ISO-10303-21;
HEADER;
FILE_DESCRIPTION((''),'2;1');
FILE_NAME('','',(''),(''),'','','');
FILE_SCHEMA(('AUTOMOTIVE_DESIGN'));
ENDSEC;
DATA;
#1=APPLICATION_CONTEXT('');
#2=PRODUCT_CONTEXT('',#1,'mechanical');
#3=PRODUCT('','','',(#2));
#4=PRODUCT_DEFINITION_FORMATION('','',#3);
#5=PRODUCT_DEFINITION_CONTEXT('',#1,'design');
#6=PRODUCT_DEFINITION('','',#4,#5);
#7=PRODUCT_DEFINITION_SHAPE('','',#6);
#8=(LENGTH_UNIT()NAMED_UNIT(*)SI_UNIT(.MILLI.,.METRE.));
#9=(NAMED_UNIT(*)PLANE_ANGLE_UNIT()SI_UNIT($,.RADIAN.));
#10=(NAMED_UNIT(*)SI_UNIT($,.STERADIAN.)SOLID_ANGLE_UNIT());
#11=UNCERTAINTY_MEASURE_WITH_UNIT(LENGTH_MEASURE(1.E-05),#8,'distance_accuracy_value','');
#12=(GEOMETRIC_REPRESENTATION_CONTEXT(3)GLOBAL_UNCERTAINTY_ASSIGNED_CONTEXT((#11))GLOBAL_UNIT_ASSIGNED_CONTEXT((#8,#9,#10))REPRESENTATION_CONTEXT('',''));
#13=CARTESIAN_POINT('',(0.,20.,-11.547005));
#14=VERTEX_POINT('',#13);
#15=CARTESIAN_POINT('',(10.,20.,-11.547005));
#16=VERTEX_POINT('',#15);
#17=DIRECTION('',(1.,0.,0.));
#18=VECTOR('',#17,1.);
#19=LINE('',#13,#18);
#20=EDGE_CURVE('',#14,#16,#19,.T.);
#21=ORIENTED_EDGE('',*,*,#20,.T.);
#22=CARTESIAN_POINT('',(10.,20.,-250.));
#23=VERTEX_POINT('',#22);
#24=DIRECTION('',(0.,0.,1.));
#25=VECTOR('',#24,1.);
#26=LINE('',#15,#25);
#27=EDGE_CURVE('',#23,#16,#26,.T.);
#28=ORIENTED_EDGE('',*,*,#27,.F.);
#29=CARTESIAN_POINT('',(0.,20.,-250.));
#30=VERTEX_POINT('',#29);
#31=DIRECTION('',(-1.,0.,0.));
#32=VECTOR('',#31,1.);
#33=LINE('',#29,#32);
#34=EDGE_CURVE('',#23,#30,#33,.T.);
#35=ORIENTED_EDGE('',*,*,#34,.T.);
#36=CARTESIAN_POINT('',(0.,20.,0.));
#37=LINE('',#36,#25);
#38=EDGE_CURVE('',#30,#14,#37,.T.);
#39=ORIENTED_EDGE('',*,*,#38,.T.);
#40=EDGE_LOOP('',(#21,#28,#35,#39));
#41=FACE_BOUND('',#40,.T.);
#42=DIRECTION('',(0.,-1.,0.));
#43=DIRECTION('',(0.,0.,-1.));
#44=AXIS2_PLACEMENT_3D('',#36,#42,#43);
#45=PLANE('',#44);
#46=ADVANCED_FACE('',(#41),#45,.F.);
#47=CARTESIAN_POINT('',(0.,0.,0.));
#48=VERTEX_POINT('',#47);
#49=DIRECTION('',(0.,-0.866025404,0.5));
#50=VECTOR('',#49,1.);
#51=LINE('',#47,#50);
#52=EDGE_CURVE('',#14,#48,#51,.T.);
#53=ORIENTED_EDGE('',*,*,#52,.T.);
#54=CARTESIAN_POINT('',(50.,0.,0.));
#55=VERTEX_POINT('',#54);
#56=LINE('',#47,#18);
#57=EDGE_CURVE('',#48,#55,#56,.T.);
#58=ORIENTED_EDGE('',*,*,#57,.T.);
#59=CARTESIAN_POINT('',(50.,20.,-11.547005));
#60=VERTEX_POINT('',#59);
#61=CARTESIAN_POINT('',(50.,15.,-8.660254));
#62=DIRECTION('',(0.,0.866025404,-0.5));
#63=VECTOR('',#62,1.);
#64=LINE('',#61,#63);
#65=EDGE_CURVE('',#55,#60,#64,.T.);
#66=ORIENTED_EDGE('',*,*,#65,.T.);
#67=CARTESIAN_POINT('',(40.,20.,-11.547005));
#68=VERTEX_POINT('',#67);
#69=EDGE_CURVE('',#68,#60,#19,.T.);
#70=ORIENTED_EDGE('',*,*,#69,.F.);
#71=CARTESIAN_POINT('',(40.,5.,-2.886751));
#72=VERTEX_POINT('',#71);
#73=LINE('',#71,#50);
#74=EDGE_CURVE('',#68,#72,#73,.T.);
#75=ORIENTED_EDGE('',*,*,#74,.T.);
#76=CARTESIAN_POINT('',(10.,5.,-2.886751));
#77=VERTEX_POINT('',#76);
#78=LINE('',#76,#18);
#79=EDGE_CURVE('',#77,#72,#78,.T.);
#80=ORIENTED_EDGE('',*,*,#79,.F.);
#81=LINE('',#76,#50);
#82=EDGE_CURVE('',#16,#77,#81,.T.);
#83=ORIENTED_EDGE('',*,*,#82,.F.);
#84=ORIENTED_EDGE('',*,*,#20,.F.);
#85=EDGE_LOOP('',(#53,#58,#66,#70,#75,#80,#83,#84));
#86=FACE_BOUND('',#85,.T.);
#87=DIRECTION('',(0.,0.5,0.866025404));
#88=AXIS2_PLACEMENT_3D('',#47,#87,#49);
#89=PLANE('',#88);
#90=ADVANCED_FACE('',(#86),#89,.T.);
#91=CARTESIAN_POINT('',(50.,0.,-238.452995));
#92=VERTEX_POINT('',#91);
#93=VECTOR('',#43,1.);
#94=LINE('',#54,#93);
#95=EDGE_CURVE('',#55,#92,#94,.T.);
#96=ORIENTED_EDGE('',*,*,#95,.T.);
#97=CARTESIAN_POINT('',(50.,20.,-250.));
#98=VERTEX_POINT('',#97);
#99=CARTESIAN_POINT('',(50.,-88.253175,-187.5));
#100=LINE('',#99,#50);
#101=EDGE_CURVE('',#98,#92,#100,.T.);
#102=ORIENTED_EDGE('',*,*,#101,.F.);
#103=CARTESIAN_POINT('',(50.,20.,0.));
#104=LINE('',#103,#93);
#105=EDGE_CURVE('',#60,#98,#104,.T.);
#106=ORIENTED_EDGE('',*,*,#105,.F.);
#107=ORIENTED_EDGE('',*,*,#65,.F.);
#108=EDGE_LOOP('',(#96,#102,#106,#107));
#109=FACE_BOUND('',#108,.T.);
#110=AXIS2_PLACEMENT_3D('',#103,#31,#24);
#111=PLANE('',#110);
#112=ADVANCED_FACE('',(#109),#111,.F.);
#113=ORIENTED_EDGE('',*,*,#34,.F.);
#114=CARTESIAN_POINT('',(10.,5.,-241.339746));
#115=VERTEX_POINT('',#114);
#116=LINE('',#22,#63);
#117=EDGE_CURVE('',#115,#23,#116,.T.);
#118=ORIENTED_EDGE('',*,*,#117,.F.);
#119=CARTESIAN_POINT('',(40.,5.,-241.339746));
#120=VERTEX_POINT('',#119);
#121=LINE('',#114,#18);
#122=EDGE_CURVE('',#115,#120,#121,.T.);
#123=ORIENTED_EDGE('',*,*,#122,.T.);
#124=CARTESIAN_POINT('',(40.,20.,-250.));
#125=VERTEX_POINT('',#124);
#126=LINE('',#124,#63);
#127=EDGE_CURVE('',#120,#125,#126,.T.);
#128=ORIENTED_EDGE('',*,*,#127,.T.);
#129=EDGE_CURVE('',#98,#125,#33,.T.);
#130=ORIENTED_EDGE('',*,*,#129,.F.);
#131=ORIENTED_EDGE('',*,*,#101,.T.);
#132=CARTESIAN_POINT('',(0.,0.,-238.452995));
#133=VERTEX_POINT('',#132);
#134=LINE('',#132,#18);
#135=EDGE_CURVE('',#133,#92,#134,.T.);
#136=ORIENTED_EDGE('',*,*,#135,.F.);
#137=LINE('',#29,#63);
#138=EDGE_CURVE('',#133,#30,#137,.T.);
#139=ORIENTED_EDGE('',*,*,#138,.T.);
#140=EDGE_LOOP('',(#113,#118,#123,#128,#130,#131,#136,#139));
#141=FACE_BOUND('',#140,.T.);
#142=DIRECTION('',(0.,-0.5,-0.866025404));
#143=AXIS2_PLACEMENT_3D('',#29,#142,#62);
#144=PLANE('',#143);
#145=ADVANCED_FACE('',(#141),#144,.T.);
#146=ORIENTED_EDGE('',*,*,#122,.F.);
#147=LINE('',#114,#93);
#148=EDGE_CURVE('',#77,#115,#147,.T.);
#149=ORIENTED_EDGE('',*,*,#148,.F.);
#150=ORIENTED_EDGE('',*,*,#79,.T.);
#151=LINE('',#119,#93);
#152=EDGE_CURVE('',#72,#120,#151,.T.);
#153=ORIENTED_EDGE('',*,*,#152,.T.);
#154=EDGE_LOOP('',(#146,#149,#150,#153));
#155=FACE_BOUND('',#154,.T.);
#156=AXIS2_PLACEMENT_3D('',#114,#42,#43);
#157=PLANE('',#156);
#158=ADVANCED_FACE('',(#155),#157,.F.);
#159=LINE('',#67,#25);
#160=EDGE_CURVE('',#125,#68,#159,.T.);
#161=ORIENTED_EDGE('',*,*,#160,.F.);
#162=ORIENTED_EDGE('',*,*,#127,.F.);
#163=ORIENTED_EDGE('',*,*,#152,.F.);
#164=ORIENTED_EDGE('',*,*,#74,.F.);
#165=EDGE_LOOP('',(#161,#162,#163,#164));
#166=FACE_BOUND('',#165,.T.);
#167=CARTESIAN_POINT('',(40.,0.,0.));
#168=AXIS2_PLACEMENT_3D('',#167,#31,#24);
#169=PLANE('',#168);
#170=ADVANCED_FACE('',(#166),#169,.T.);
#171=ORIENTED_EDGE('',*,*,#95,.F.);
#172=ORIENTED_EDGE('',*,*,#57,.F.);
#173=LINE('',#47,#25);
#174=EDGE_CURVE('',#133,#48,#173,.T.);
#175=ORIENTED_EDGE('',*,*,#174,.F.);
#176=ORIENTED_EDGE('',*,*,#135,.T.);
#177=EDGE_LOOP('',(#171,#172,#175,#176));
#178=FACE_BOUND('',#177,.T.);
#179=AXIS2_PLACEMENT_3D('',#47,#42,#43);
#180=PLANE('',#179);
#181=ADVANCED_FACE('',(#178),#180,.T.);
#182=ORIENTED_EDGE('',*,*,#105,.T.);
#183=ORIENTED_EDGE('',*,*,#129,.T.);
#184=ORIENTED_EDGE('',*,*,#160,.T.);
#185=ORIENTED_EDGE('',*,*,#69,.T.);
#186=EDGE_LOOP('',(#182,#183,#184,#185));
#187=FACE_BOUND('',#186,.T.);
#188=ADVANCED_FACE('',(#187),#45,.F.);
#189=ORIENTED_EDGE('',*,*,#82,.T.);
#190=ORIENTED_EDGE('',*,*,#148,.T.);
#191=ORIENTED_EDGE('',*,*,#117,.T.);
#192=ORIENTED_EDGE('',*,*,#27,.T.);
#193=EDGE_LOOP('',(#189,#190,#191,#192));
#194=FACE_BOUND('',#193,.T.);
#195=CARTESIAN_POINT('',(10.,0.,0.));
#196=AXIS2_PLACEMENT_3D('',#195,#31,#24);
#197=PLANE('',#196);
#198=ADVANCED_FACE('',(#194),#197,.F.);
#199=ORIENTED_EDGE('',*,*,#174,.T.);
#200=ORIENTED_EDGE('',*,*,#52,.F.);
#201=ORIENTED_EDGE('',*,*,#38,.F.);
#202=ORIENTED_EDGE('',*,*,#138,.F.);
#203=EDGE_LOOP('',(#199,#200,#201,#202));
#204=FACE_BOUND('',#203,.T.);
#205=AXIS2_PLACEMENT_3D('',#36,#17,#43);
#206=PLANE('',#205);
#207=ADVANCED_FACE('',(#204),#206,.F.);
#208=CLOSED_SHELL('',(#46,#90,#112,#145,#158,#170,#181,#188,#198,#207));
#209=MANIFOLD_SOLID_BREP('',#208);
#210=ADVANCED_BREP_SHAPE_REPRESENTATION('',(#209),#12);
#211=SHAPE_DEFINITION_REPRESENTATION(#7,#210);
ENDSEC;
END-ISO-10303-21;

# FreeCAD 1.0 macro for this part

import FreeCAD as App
import Part
import Sketcher
from FreeCAD import Vector
Q = App.Units.Quantity

doc = App.newDocument("Part")
params = doc.addObject("Spreadsheet::Sheet", "Params")
for row, (alias, value) in enumerate([
    ("sketch1_width", "50 mm"),
    ("sketch1_height", "250 mm"),
    ("pad1_length", "20 mm"),
    ("pocket2_length", "30 mm"),
], start=1):
    params.set(f"A{row}", alias)
    params.set(f"B{row}", "=" + value)
    params.setAlias(f"B{row}", alias)

body = doc.addObject("PartDesign::Body", "Body")

sketch1 = body.newObject("Sketcher::SketchObject", "Sketch")
sketch1.AttachmentSupport = (doc.getObject("XZ_Plane"), [""])
sketch1.MapMode = "FlatFace"
sketch1.addGeometry(Part.LineSegment(Vector(0, -250, 0), Vector(0, 0, 0)), False)
sketch1.addGeometry(Part.LineSegment(Vector(0, 0, 0), Vector(50, 0, 0)), False)
sketch1.addGeometry(Part.LineSegment(Vector(50, 0, 0), Vector(50, -250, 0)), False)
sketch1.addGeometry(Part.LineSegment(Vector(50, -250, 0), Vector(0, -250, 0)), False)
sketch1.addConstraint(Sketcher.Constraint("Coincident", 0, 2, 1, 1))
sketch1.addConstraint(Sketcher.Constraint("Coincident", 1, 2, 2, 1))
sketch1.addConstraint(Sketcher.Constraint("Coincident", 2, 2, 3, 1))
sketch1.addConstraint(Sketcher.Constraint("Coincident", 3, 2, 0, 1))
sketch1.addConstraint(Sketcher.Constraint("Vertical", 0))
sketch1.addConstraint(Sketcher.Constraint("Horizontal", 1))
sketch1.addConstraint(Sketcher.Constraint("Vertical", 2))
sketch1.addConstraint(Sketcher.Constraint("Horizontal", 3))
sketch1.addConstraint(Sketcher.Constraint("Coincident", 0, 2, -1, 1))
sketch1.addConstraint(Sketcher.Constraint("DistanceX", 1, 1, 1, 2, Q("50 mm")))
sketch1.addConstraint(Sketcher.Constraint("DistanceY", 0, 1, 0, 2, Q("250 mm")))
sketch1.setExpression("Constraints[9]", "Params.sketch1_width")
sketch1.setExpression("Constraints[10]", "Params.sketch1_height")
pad1 = body.newObject("PartDesign::Pad", "Pad")
pad1.Profile = sketch1
pad1.setExpression("Length", "Params.pad1_length")
pad1.Reversed = True

sketch2 = body.newObject("Sketcher::SketchObject", "Sketch001")
sketch2.AttachmentSupport = (doc.getObject("YZ_Plane"), [""])
sketch2.MapMode = "FlatFace"
sketch2.AttachmentOffset = App.Placement(Vector(0, 0, 50), App.Rotation())
sketch2.addGeometry(Part.LineSegment(Vector(47, 27, 0), Vector(-27, 27, 0)), False)
sketch2.addGeometry(Part.LineSegment(Vector(-27, 27, 0), Vector(-27, -277, 0)), False)
sketch2.addGeometry(Part.LineSegment(Vector(-27, -277, 0), Vector(47, -277, 0)), False)
sketch2.addGeometry(Part.LineSegment(Vector(47, -277, 0), Vector(47, 27, 0)), False)
sketch2.addGeometry(Part.LineSegment(Vector(0, -238, 0), Vector(0, 0, 0)), False)
sketch2.addGeometry(Part.LineSegment(Vector(0, 0, 0), Vector(20, -12, 0)), False)
sketch2.addGeometry(Part.LineSegment(Vector(20, -12, 0), Vector(20, -250, 0)), False)
sketch2.addGeometry(Part.LineSegment(Vector(20, -250, 0), Vector(0, -238, 0)), False)
sketch2.addConstraint(Sketcher.Constraint("Coincident", 0, 2, 1, 1))
sketch2.addConstraint(Sketcher.Constraint("Coincident", 1, 2, 2, 1))
sketch2.addConstraint(Sketcher.Constraint("Coincident", 2, 2, 3, 1))
sketch2.addConstraint(Sketcher.Constraint("Coincident", 3, 2, 0, 1))
sketch2.addConstraint(Sketcher.Constraint("Coincident", 4, 2, 5, 1))
sketch2.addConstraint(Sketcher.Constraint("Coincident", 5, 2, 6, 1))
sketch2.addConstraint(Sketcher.Constraint("Coincident", 6, 2, 7, 1))
sketch2.addConstraint(Sketcher.Constraint("Coincident", 7, 2, 4, 1))
sketch2.addConstraint(Sketcher.Constraint("Horizontal", 0))
sketch2.addConstraint(Sketcher.Constraint("Vertical", 1))
sketch2.addConstraint(Sketcher.Constraint("Horizontal", 2))
sketch2.addConstraint(Sketcher.Constraint("Vertical", 3))
sketch2.addConstraint(Sketcher.Constraint("Vertical", 4))
sketch2.addConstraint(Sketcher.Constraint("Vertical", 6))
sketch2.addConstraint(Sketcher.Constraint("Coincident", 4, 2, -1, 1))
sketch2.addConstraint(Sketcher.Constraint("Parallel", 5, 7))
sketch2.addConstraint(Sketcher.Constraint("Angle", 5, Q("-30 deg")))
sketch2.addConstraint(Sketcher.Constraint("DistanceX", -1, 1, 5, 2, Q("20 mm")))
sketch2.addConstraint(Sketcher.Constraint("DistanceY", 6, 2, -1, 1, Q("250 mm")))
sketch2.addConstraint(Sketcher.Constraint("DistanceX", 0, 2, 0, 1, Q("73.146 mm")))
sketch2.addConstraint(Sketcher.Constraint("DistanceY", 1, 2, 1, 1, Q("303.146 mm")))
sketch2.addConstraint(Sketcher.Constraint("DistanceX", 0, 2, -1, 1, Q("26.573 mm")))
sketch2.addConstraint(Sketcher.Constraint("DistanceY", -1, 1, 0, 2, Q("26.573 mm")))
pocket1 = body.newObject("PartDesign::Pocket", "Pocket")
pocket1.Profile = sketch2
pocket1.Type = "ThroughAll"
pocket1.Midplane = True

sketch3 = body.newObject("Sketcher::SketchObject", "Sketch002")
sketch3.AttachmentSupport = (doc.getObject("YZ_Plane"), [""])
sketch3.MapMode = "FlatFace"
sketch3.AttachmentOffset = App.Placement(Vector(0, 0, 40), App.Rotation())
sketch3.addGeometry(Part.LineSegment(Vector(20, -250, 0), Vector(20, -12, 0)), False)
sketch3.addGeometry(Part.LineSegment(Vector(20, -12, 0), Vector(5, -3, 0)), False)
sketch3.addGeometry(Part.LineSegment(Vector(5, -3, 0), Vector(5, -241, 0)), False)
sketch3.addGeometry(Part.LineSegment(Vector(5, -241, 0), Vector(20, -250, 0)), False)
sketch3.addConstraint(Sketcher.Constraint("Coincident", 0, 2, 1, 1))
sketch3.addConstraint(Sketcher.Constraint("Coincident", 1, 2, 2, 1))
sketch3.addConstraint(Sketcher.Constraint("Coincident", 2, 2, 3, 1))
sketch3.addConstraint(Sketcher.Constraint("Coincident", 3, 2, 0, 1))
sketch3.addConstraint(Sketcher.Constraint("Vertical", 0))
sketch3.addConstraint(Sketcher.Constraint("Vertical", 2))
sketch3.addConstraint(Sketcher.Constraint("Parallel", 1, 3))
sketch3.addConstraint(Sketcher.Constraint("Angle", 1, Q("150 deg")))
sketch3.addConstraint(Sketcher.Constraint("DistanceX", -1, 1, 0, 2, Q("20 mm")))
sketch3.addConstraint(Sketcher.Constraint("DistanceX", -1, 1, 1, 2, Q("5 mm")))
sketch3.addConstraint(Sketcher.Constraint("DistanceY", 3, 2, -1, 1, Q("250 mm")))
sketch3.addConstraint(Sketcher.Constraint("DistanceY", 0, 1, 0, 2, Q("238.452995 mm")))
pocket2 = body.newObject("PartDesign::Pocket", "Pocket001")
pocket2.Profile = sketch3
pocket2.setExpression("Length", "Params.pocket2_length")

doc.recompute()
